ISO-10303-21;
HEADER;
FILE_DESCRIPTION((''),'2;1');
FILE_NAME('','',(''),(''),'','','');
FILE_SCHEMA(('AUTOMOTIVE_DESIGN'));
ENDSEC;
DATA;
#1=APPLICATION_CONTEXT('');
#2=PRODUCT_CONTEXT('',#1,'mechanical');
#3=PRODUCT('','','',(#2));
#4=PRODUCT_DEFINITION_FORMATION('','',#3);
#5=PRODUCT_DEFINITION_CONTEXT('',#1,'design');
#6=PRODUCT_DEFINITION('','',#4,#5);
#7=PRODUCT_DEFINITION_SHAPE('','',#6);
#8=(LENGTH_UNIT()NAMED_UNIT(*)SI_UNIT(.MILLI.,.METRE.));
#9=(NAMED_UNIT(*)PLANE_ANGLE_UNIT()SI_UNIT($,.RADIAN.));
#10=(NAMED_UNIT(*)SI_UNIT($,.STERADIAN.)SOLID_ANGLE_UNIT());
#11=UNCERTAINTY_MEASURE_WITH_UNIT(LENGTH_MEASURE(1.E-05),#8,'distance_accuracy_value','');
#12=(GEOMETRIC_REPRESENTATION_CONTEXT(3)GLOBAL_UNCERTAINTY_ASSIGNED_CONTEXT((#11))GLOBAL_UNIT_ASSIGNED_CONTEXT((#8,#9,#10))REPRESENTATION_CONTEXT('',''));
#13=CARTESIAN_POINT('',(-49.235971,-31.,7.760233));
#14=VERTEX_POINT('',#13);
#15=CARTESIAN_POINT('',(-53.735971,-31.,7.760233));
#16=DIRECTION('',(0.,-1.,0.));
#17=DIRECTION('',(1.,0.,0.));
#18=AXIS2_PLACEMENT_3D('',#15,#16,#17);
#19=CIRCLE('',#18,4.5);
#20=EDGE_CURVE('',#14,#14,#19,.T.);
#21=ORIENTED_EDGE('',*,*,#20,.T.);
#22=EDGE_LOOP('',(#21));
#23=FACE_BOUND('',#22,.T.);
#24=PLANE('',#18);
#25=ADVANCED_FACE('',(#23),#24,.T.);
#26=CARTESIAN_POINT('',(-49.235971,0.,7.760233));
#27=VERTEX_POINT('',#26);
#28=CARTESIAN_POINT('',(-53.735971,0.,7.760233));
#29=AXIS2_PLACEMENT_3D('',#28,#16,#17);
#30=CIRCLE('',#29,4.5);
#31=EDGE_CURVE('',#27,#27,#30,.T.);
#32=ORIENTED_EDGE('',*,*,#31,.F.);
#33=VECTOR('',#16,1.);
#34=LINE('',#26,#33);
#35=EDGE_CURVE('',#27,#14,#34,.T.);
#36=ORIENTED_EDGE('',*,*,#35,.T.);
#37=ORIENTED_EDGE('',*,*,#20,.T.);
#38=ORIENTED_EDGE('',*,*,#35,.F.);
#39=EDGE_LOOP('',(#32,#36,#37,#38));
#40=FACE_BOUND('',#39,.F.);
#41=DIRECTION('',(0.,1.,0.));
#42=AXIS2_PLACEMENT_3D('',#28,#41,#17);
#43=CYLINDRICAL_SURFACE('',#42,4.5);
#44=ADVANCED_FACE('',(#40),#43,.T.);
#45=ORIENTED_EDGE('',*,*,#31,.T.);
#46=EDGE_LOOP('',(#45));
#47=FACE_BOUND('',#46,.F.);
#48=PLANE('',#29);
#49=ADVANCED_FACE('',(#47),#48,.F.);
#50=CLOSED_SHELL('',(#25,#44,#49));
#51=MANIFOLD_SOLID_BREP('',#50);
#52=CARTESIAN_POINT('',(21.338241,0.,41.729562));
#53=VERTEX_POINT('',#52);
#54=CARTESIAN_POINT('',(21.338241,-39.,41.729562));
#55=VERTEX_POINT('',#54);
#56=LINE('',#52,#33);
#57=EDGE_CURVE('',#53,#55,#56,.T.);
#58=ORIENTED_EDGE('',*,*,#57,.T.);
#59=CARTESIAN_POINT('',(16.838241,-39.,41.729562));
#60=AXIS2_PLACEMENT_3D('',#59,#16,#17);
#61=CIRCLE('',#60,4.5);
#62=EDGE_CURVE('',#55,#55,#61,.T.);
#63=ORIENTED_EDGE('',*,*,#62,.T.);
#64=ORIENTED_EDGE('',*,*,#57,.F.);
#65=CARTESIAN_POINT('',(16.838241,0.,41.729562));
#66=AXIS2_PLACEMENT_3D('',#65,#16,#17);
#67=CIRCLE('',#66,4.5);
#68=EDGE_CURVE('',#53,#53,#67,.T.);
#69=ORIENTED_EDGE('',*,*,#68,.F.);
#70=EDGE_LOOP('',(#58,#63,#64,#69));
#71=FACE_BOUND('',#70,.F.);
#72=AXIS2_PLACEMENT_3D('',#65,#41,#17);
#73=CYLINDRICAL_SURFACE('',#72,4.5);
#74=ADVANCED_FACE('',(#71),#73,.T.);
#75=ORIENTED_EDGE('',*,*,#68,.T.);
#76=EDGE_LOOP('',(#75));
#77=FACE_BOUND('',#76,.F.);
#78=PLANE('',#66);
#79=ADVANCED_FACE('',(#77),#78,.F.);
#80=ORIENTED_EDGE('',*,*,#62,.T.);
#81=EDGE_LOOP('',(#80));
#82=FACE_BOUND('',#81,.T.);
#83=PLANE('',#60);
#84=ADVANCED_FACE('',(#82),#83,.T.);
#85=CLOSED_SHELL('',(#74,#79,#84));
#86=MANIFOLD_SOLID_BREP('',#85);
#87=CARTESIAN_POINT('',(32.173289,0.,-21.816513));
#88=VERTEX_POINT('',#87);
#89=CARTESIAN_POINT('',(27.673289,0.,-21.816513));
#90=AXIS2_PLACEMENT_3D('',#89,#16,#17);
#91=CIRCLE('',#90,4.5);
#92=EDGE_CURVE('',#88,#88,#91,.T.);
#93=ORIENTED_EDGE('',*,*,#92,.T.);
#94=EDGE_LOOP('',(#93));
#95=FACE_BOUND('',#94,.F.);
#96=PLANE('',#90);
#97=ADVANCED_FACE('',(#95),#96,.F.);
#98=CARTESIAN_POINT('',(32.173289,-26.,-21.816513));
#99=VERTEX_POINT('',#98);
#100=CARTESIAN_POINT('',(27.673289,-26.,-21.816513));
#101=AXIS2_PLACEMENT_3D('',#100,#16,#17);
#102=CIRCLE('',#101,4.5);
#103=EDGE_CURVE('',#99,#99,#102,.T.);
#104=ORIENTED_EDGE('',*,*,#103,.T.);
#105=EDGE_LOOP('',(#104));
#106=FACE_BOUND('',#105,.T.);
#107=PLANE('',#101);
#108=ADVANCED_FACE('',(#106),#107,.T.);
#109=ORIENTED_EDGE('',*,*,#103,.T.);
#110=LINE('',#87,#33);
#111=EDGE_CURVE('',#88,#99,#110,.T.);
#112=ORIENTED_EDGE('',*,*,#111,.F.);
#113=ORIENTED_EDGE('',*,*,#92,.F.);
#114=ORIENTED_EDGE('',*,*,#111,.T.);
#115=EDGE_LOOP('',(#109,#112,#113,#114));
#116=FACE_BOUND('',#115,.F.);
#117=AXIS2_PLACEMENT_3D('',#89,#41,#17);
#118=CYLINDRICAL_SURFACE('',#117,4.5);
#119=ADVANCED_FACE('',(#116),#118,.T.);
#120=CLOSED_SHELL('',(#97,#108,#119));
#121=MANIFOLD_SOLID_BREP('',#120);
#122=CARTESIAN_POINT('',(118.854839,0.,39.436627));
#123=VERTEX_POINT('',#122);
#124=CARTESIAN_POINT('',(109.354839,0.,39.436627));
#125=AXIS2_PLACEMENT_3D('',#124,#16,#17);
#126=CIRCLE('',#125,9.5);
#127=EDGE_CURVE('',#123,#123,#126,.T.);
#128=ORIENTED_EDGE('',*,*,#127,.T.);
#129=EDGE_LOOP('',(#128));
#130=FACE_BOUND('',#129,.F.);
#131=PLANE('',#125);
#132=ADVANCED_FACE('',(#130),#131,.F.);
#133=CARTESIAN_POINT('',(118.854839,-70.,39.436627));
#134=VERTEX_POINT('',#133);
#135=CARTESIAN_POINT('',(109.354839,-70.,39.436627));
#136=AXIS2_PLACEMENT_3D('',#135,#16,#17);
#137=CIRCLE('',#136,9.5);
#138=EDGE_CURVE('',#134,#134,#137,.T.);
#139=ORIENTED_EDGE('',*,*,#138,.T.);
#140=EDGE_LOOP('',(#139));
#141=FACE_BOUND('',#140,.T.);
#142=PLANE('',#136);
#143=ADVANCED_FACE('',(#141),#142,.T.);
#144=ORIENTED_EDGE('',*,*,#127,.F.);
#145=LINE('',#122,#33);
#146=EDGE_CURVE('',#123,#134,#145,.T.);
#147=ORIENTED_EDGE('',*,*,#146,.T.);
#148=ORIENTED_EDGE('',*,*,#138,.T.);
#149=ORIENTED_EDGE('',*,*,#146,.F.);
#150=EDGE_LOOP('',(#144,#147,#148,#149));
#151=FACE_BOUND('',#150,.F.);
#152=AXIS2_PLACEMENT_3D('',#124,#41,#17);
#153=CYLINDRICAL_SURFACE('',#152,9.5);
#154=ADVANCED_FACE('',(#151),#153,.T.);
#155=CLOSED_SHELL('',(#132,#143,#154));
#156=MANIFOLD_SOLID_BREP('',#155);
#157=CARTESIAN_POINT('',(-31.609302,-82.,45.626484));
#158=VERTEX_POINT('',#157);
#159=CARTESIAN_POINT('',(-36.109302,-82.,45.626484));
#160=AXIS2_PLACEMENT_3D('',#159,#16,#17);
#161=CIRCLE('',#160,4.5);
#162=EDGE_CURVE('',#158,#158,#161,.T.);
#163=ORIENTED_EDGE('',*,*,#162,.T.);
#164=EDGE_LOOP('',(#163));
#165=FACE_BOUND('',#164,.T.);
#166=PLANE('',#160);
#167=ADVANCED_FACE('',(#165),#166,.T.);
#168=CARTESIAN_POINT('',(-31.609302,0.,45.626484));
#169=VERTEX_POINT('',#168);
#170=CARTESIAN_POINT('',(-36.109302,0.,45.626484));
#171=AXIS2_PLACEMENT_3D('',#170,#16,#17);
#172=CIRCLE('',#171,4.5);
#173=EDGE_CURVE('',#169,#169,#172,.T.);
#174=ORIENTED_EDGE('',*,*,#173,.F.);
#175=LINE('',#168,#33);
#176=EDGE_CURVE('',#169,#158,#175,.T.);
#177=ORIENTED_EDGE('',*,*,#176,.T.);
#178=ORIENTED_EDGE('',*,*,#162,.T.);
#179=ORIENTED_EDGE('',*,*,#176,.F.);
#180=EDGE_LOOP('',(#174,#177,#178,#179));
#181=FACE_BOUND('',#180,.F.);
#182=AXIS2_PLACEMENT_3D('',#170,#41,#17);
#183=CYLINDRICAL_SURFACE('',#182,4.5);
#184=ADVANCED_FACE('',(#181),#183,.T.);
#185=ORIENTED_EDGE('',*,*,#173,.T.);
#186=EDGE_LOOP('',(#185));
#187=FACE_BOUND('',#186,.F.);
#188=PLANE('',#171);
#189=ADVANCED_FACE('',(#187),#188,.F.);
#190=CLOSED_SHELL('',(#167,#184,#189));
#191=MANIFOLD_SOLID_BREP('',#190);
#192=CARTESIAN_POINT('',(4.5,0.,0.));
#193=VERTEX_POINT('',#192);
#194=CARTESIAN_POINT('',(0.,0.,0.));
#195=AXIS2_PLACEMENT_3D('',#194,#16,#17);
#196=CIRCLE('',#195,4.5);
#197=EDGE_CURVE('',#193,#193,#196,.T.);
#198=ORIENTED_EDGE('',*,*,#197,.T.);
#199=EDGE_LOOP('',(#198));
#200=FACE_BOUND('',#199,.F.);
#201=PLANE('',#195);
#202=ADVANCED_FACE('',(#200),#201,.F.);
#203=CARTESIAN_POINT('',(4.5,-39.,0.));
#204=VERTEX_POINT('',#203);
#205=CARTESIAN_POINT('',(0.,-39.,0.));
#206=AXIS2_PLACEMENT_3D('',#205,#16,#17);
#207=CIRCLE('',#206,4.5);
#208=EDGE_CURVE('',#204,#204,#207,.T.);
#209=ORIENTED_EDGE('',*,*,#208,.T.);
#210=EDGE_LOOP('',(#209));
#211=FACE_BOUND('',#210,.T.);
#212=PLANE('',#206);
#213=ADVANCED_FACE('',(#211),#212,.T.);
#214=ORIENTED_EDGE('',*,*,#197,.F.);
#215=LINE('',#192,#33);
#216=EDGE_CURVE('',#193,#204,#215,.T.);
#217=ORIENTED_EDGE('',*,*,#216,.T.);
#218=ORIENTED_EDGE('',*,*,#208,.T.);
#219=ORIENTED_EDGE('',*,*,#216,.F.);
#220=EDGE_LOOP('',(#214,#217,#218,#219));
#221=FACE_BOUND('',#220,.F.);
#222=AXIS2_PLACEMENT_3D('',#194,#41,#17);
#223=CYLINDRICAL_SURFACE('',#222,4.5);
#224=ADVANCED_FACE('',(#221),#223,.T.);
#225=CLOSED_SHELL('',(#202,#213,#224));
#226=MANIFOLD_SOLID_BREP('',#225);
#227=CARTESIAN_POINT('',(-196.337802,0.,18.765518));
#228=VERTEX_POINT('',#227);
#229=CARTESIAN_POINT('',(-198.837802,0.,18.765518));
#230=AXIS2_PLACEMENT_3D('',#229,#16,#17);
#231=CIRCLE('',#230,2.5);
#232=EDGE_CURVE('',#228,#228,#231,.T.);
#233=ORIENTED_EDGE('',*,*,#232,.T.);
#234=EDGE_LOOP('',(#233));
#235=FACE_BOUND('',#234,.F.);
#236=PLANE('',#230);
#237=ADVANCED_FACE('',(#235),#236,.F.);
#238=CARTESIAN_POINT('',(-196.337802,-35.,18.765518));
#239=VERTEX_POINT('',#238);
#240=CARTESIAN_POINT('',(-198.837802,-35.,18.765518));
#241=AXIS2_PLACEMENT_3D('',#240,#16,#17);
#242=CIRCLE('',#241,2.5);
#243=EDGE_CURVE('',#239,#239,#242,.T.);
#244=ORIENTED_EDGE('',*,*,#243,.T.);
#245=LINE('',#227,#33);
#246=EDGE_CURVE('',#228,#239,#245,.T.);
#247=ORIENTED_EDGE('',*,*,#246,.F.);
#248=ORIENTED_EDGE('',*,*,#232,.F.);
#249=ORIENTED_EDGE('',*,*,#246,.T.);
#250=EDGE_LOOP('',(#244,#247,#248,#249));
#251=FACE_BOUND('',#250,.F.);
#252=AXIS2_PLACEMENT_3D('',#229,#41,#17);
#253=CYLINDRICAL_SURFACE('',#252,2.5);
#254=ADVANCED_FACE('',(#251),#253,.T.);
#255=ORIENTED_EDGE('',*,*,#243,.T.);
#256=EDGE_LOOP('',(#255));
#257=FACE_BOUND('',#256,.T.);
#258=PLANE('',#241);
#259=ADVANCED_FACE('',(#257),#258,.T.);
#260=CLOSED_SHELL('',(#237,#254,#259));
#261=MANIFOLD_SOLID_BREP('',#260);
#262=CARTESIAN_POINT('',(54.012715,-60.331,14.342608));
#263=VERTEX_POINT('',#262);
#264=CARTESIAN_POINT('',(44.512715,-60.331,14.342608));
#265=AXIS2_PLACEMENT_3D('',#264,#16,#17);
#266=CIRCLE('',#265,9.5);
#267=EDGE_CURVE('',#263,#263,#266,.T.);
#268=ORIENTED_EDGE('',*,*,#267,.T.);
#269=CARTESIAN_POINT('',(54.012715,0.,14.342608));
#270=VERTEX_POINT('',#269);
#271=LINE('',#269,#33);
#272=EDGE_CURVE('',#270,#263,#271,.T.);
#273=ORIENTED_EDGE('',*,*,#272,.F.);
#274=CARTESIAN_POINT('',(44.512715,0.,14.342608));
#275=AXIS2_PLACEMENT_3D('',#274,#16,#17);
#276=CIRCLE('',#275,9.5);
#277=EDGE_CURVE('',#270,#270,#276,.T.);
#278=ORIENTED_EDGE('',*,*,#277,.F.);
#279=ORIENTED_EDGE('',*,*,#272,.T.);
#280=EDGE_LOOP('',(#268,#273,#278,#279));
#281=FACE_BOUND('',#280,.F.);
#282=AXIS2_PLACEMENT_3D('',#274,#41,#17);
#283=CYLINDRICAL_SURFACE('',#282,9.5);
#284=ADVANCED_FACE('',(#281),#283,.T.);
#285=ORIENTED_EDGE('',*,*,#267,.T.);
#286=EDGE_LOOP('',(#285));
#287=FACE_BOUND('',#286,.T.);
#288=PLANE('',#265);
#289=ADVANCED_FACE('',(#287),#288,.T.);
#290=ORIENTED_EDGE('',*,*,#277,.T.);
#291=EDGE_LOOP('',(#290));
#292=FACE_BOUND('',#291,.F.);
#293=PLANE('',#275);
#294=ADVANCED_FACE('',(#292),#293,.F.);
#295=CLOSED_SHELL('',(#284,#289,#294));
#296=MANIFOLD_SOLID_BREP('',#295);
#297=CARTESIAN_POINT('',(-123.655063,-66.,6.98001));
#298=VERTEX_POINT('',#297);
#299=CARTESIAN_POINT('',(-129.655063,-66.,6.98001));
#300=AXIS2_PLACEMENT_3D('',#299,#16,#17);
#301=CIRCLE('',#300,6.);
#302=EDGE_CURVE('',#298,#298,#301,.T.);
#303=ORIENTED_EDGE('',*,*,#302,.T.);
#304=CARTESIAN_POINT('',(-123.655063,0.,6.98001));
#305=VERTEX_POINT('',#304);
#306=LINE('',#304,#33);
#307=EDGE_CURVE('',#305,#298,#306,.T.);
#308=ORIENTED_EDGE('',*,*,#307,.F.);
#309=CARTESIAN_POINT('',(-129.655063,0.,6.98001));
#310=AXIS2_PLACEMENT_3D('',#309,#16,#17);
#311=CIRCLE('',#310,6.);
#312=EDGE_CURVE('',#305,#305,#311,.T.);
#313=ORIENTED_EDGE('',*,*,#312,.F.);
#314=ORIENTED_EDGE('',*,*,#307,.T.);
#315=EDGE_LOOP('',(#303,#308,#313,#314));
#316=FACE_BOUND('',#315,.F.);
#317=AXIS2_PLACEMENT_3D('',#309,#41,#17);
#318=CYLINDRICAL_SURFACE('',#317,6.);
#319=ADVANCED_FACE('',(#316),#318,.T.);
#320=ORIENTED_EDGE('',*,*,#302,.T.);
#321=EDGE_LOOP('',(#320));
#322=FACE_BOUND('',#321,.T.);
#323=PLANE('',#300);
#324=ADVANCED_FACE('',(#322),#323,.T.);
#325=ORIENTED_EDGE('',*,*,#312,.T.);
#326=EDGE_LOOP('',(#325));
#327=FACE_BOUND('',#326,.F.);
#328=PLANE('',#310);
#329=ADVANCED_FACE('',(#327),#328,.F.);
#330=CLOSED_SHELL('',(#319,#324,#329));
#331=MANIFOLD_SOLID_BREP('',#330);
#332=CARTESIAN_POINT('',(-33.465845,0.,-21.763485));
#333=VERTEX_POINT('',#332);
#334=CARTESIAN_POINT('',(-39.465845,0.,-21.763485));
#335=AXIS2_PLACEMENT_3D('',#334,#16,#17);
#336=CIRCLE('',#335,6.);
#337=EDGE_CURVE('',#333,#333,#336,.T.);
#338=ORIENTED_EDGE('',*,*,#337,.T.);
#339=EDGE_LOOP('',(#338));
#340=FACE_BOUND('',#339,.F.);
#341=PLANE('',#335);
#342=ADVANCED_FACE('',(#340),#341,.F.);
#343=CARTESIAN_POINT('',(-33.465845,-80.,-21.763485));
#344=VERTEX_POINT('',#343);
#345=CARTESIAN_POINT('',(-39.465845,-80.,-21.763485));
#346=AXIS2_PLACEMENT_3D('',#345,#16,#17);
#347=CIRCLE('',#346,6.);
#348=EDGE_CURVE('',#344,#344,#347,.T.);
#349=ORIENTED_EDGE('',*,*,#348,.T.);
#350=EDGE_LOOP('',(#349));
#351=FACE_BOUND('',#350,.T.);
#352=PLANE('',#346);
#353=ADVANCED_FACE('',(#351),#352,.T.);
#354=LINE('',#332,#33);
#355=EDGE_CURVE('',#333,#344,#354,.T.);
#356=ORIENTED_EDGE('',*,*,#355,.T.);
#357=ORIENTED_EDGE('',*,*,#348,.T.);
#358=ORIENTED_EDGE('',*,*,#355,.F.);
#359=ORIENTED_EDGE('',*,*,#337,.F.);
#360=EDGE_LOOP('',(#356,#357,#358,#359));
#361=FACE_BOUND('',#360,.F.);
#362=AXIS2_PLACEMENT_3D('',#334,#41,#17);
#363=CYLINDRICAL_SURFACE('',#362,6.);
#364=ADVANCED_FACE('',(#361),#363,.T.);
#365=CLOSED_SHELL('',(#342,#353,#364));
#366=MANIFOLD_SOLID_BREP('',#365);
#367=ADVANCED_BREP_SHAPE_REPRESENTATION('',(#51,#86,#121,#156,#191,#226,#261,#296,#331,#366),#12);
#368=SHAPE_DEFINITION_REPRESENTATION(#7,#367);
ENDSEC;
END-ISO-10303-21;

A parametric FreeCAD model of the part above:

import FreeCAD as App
import Part
import Sketcher

doc = App.newDocument("Part")
body = doc.addObject("PartDesign::Body", "Body")

sketch1 = body.newObject("Sketcher::SketchObject", "Sketch")
sketch1.AttachmentSupport = (doc.getObject("XZ_Plane"), [""])
sketch1.MapMode = "FlatFace"
sketch1.addGeometry(Part.Circle(App.Vector(0, 0, 0), App.Vector(0, 0, 1), 4.5), False)
sketch1.addConstraint([
    Sketcher.Constraint("Coincident", 0, 3, -1, 1),
    Sketcher.Constraint("Diameter", 0, 9.0),
])
pad1 = body.newObject("PartDesign::Pad", "Pad")
pad1.Profile = sketch1
pad1.Length = 39
body2 = doc.addObject("PartDesign::Body", "Body001")

sketch2 = body2.newObject("Sketcher::SketchObject", "Sketch001")
sketch2.AttachmentSupport = (doc.getObject("XZ_Plane001"), [""])
sketch2.MapMode = "FlatFace"
sketch2.addGeometry(Part.Circle(App.Vector(-36.109302, 45.626484, 0), App.Vector(0, 0, 1), 4.5), False)
sketch2.addConstraint([
    Sketcher.Constraint("Diameter", 0, 9.0),
    Sketcher.Constraint("DistanceX", 0, 3, -1, 1, 36.109302),
    Sketcher.Constraint("DistanceY", -1, 1, 0, 3, 45.626484),
])
pad2 = body2.newObject("PartDesign::Pad", "Pad001")
pad2.Profile = sketch2
pad2.Length = 82
body3 = doc.addObject("PartDesign::Body", "Body002")

sketch3 = body3.newObject("Sketcher::SketchObject", "Sketch002")
sketch3.AttachmentSupport = (doc.getObject("XZ_Plane002"), [""])
sketch3.MapMode = "FlatFace"
sketch3.addGeometry(Part.Circle(App.Vector(44.512715, 14.342608, 0), App.Vector(0, 0, 1), 9.5), False)
sketch3.addConstraint([
    Sketcher.Constraint("Diameter", 0, 19.0),
    Sketcher.Constraint("DistanceX", -1, 1, 0, 3, 44.512715),
    Sketcher.Constraint("DistanceY", -1, 1, 0, 3, 14.342608),
])
pad3 = body3.newObject("PartDesign::Pad", "Pad002")
pad3.Profile = sketch3
pad3.Length = 60.331
body4 = doc.addObject("PartDesign::Body", "Body003")

sketch4 = body4.newObject("Sketcher::SketchObject", "Sketch003")
sketch4.AttachmentSupport = (doc.getObject("XZ_Plane003"), [""])
sketch4.MapMode = "FlatFace"
sketch4.addGeometry(Part.Circle(App.Vector(-53.735971, 7.760233, 0), App.Vector(0, 0, 1), 4.5), False)
sketch4.addConstraint([
    Sketcher.Constraint("Diameter", 0, 9.0),
    Sketcher.Constraint("DistanceX", 0, 3, -1, 1, 53.735971),
    Sketcher.Constraint("DistanceY", -1, 1, 0, 3, 7.760233),
])
pad4 = body4.newObject("PartDesign::Pad", "Pad003")
pad4.Profile = sketch4
pad4.Length = 31
body5 = doc.addObject("PartDesign::Body", "Body004")

sketch5 = body5.newObject("Sketcher::SketchObject", "Sketch004")
sketch5.AttachmentSupport = (doc.getObject("XZ_Plane004"), [""])
sketch5.MapMode = "FlatFace"
sketch5.addGeometry(Part.Circle(App.Vector(-39.465845, -21.763485, 0), App.Vector(0, 0, 1), 6), False)
sketch5.addConstraint([
    Sketcher.Constraint("Diameter", 0, 12.0),
    Sketcher.Constraint("DistanceX", 0, 3, -1, 1, 39.465845),
    Sketcher.Constraint("DistanceY", 0, 3, -1, 1, 21.763485),
])
pad5 = body5.newObject("PartDesign::Pad", "Pad004")
pad5.Profile = sketch5
pad5.Length = 80
body6 = doc.addObject("PartDesign::Body", "Body005")

sketch6 = body6.newObject("Sketcher::SketchObject", "Sketch005")
sketch6.AttachmentSupport = (doc.getObject("XZ_Plane005"), [""])
sketch6.MapMode = "FlatFace"
sketch6.addGeometry(Part.Circle(App.Vector(27.673289, -21.816513, 0), App.Vector(0, 0, 1), 4.5), False)
sketch6.addConstraint([
    Sketcher.Constraint("Diameter", 0, 9.0),
    Sketcher.Constraint("DistanceX", -1, 1, 0, 3, 27.673289),
    Sketcher.Constraint("DistanceY", 0, 3, -1, 1, 21.816513),
])
pad6 = body6.newObject("PartDesign::Pad", "Pad005")
pad6.Profile = sketch6
pad6.Length = 26
body7 = doc.addObject("PartDesign::Body", "Body006")

sketch7 = body7.newObject("Sketcher::SketchObject", "Sketch006")
sketch7.AttachmentSupport = (doc.getObject("XZ_Plane006"), [""])
sketch7.MapMode = "FlatFace"
sketch7.addGeometry(Part.Circle(App.Vector(16.838241, 41.729562, 0), App.Vector(0, 0, 1), 4.5), False)
sketch7.addConstraint([
    Sketcher.Constraint("Diameter", 0, 9.0),
    Sketcher.Constraint("DistanceX", -1, 1, 0, 3, 16.838241),
    Sketcher.Constraint("DistanceY", -1, 1, 0, 3, 41.729562),
])
pad7 = body7.newObject("PartDesign::Pad", "Pad006")
pad7.Profile = sketch7
pad7.Length = 39
body8 = doc.addObject("PartDesign::Body", "Body007")

sketch8 = body8.newObject("Sketcher::SketchObject", "Sketch007")
sketch8.AttachmentSupport = (doc.getObject("XZ_Plane007"), [""])
sketch8.MapMode = "FlatFace"
sketch8.addGeometry(Part.Circle(App.Vector(109.354839, 39.436627, 0), App.Vector(0, 0, 1), 9.5), False)
sketch8.addConstraint([
    Sketcher.Constraint("Diameter", 0, 19.0),
    Sketcher.Constraint("DistanceX", -1, 1, 0, 3, 109.354839),
    Sketcher.Constraint("DistanceY", -1, 1, 0, 3, 39.436627),
])
pad8 = body8.newObject("PartDesign::Pad", "Pad007")
pad8.Profile = sketch8
pad8.Length = 70
body9 = doc.addObject("PartDesign::Body", "Body008")

sketch9 = body9.newObject("Sketcher::SketchObject", "Sketch008")
sketch9.AttachmentSupport = (doc.getObject("XZ_Plane008"), [""])
sketch9.MapMode = "FlatFace"
sketch9.addGeometry(Part.Circle(App.Vector(-129.655063, 6.98001, 0), App.Vector(0, 0, 1), 6), False)
sketch9.addConstraint([
    Sketcher.Constraint("Diameter", 0, 12.0),
    Sketcher.Constraint("DistanceY", -1, 1, 0, 3, 6.98001),
    Sketcher.Constraint("DistanceX", 0, 3, -1, 1, 129.655063),
])
pad9 = body9.newObject("PartDesign::Pad", "Pad008")
pad9.Profile = sketch9
pad9.Length = 66
body10 = doc.addObject("PartDesign::Body", "Body009")

sketch10 = body10.newObject("Sketcher::SketchObject", "Sketch009")
sketch10.AttachmentSupport = (doc.getObject("XZ_Plane009"), [""])
sketch10.MapMode = "FlatFace"
sketch10.addGeometry(Part.Circle(App.Vector(-198.837802, 18.765518, 0), App.Vector(0, 0, 1), 2.5), False)
sketch10.addConstraint([
    Sketcher.Constraint("Diameter", 0, 5.0),
    Sketcher.Constraint("DistanceY", -1, 1, 0, 3, 18.765518),
    Sketcher.Constraint("DistanceX", 0, 3, -1, 1, 198.837802),
])
pad10 = body10.newObject("PartDesign::Pad", "Pad009")
pad10.Profile = sketch10
pad10.Length = 35

doc.recompute()
